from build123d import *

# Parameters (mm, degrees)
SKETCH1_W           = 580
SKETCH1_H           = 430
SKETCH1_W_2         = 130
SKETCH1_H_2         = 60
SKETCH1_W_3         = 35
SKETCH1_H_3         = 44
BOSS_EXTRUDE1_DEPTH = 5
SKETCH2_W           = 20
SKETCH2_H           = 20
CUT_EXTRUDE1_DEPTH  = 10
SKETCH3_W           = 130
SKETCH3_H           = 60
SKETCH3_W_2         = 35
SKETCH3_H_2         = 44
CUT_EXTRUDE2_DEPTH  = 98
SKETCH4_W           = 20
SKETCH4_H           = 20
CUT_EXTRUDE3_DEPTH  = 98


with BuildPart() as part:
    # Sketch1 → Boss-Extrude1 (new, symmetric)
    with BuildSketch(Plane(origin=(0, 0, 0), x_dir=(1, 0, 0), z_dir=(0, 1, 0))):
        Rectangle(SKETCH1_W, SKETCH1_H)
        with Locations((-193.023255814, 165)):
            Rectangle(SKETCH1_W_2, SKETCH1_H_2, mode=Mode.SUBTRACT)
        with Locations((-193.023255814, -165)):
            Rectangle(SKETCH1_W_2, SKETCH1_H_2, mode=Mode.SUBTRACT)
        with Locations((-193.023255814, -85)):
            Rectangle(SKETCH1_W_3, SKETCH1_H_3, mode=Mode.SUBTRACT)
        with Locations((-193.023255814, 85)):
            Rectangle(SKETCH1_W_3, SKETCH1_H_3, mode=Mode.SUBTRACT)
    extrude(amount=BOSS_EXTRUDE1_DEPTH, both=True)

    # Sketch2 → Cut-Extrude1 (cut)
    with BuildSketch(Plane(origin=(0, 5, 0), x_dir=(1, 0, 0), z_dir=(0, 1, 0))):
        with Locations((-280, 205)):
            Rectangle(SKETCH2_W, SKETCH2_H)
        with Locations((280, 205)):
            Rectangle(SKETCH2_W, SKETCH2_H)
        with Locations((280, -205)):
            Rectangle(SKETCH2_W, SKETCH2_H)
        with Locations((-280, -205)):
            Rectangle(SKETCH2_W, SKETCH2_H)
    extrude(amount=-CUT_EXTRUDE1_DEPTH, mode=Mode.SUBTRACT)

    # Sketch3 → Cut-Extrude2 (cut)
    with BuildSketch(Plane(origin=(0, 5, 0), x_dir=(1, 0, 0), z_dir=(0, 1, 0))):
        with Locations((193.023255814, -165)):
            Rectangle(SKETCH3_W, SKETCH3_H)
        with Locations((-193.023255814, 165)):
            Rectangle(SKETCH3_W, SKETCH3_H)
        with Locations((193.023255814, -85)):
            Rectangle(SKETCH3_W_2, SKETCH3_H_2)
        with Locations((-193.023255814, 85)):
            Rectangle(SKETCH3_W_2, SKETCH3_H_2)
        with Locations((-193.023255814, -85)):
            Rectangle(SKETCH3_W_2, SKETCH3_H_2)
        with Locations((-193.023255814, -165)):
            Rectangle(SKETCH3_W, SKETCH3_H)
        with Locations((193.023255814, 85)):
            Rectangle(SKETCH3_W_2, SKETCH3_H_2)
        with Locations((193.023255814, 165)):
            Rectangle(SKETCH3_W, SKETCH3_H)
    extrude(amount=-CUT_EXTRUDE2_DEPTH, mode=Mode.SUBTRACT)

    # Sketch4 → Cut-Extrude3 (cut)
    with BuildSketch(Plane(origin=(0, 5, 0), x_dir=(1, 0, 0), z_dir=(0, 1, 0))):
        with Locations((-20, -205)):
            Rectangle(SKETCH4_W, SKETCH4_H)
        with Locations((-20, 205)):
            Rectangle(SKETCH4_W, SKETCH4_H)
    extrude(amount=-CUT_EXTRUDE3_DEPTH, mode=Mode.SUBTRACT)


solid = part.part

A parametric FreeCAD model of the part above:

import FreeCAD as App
import Part
import Sketcher

V = App.Vector
Q = App.Units.Quantity

doc = App.newDocument("Part")
body = doc.addObject("PartDesign::Body", "Body")

# Sketch on XZ plane
sketch1 = body.newObject("Sketcher::SketchObject", "Sketch")
sketch1.AttachmentSupport = (doc.getObject("XZ_Plane"), [""])
sketch1.MapMode = "FlatFace"
sketch1.addGeometry([
    Part.LineSegment(V(-290, -215, 0), V(-290, 215, 0)),  # 0
    Part.LineSegment(V(-290, 215, 0), V(290, 215, 0)),  # 1
    Part.LineSegment(V(290, 215, 0), V(290, -215, 0)),  # 2
    Part.LineSegment(V(290, -215, 0), V(-290, -215, 0)),  # 3
    Part.LineSegment(V(-176, 107, 0), V(-211, 107, 0)),  # 4
    Part.LineSegment(V(-211, 107, 0), V(-211, 63, 0)),  # 5
    Part.LineSegment(V(-211, 63, 0), V(-176, 63, 0)),  # 6
    Part.LineSegment(V(-176, 63, 0), V(-176, 107, 0)),  # 7
    Part.LineSegment(V(-128, 195, 0), V(-258, 195, 0)),  # 8
    Part.LineSegment(V(-258, 195, 0), V(-258, 135, 0)),  # 9
    Part.LineSegment(V(-258, 135, 0), V(-128, 135, 0)),  # 10
    Part.LineSegment(V(-128, 135, 0), V(-128, 195, 0)),  # 11
    Part.LineSegment(V(-176, -63, 0), V(-211, -63, 0)),  # 12
    Part.LineSegment(V(-211, -63, 0), V(-211, -107, 0)),  # 13
    Part.LineSegment(V(-211, -107, 0), V(-176, -107, 0)),  # 14
    Part.LineSegment(V(-176, -107, 0), V(-176, -63, 0)),  # 15
    Part.LineSegment(V(-128, -135, 0), V(-258, -135, 0)),  # 16
    Part.LineSegment(V(-258, -135, 0), V(-258, -195, 0)),  # 17
    Part.LineSegment(V(-258, -195, 0), V(-128, -195, 0)),  # 18
    Part.LineSegment(V(-128, -195, 0), V(-128, -135, 0)),  # 19
], False)
sketch1.addConstraint([
    Sketcher.Constraint("Coincident", 0, 2, 1, 1),
    Sketcher.Constraint("Coincident", 1, 2, 2, 1),
    Sketcher.Constraint("Coincident", 2, 2, 3, 1),
    Sketcher.Constraint("Coincident", 3, 2, 0, 1),
    Sketcher.Constraint("Coincident", 4, 2, 5, 1),
    Sketcher.Constraint("Coincident", 5, 2, 6, 1),
    Sketcher.Constraint("Coincident", 6, 2, 7, 1),
    Sketcher.Constraint("Coincident", 7, 2, 4, 1),
    Sketcher.Constraint("Coincident", 8, 2, 9, 1),
    Sketcher.Constraint("Coincident", 9, 2, 10, 1),
    Sketcher.Constraint("Coincident", 10, 2, 11, 1),
    Sketcher.Constraint("Coincident", 11, 2, 8, 1),
    Sketcher.Constraint("Coincident", 12, 2, 13, 1),
    Sketcher.Constraint("Coincident", 13, 2, 14, 1),
    Sketcher.Constraint("Coincident", 14, 2, 15, 1),
    Sketcher.Constraint("Coincident", 15, 2, 12, 1),
    Sketcher.Constraint("Coincident", 16, 2, 17, 1),
    Sketcher.Constraint("Coincident", 17, 2, 18, 1),
    Sketcher.Constraint("Coincident", 18, 2, 19, 1),
    Sketcher.Constraint("Coincident", 19, 2, 16, 1),
    Sketcher.Constraint("Vertical", 0),
    Sketcher.Constraint("Horizontal", 1),
    Sketcher.Constraint("Vertical", 2),
    Sketcher.Constraint("Horizontal", 3),
    Sketcher.Constraint("Horizontal", 4),
    Sketcher.Constraint("Vertical", 5),
    Sketcher.Constraint("Horizontal", 6),
    Sketcher.Constraint("Vertical", 7),
    Sketcher.Constraint("Horizontal", 8),
    Sketcher.Constraint("Vertical", 9),
    Sketcher.Constraint("Horizontal", 10),
    Sketcher.Constraint("Vertical", 11),
    Sketcher.Constraint("Horizontal", 12),
    Sketcher.Constraint("Vertical", 13),
    Sketcher.Constraint("Horizontal", 14),
    Sketcher.Constraint("Vertical", 15),
    Sketcher.Constraint("Horizontal", 16),
    Sketcher.Constraint("Vertical", 17),
    Sketcher.Constraint("Horizontal", 18),
    Sketcher.Constraint("Vertical", 19),
    Sketcher.Constraint("Symmetric", 0, 2, 2, 2, -1, 1),
    Sketcher.Constraint("Symmetric", 5, 2, 12, 2, -1),
    Sketcher.Constraint("Symmetric", 7, 2, 14, 2, -1),
    Sketcher.Constraint("Symmetric", 9, 2, 16, 2, -1),
    Sketcher.Constraint("Symmetric", 11, 2, 18, 2, -1),
    Sketcher.Constraint("DistanceX", 1, 1, 1, 2, Q("580 mm")),
    Sketcher.Constraint("DistanceX", 4, 2, 4, 1, Q("35 mm")),
    Sketcher.Constraint("DistanceX", 8, 2, 8, 1, Q("130 mm")),
    Sketcher.Constraint("DistanceY", 0, 1, 0, 2, Q("430 mm")),
    Sketcher.Constraint("DistanceY", 5, 2, 5, 1, Q("44 mm")),
    Sketcher.Constraint("DistanceY", 9, 2, 9, 1, Q("60 mm")),
    Sketcher.Constraint("DistanceY", -1, 1, 4, 2, Q("107 mm")),
    Sketcher.Constraint("DistanceY", -1, 1, 8, 2, Q("195 mm")),
    Sketcher.Constraint("DistanceX", 8, 2, 4, 2, Q("47.5 mm")),
    Sketcher.Constraint("DistanceX", 4, 2, -1, 1, Q("210.523256 mm")),
])
pad1 = body.newObject("PartDesign::Pad", "Pad")
pad1.Profile = sketch1
pad1.Length = 10
pad1.Midplane = True

# Sketch on XZ plane
sketch2 = body.newObject("Sketcher::SketchObject", "Sketch001")
sketch2.AttachmentSupport = (doc.getObject("XZ_Plane"), [""])
sketch2.MapMode = "FlatFace"
sketch2.AttachmentOffset = App.Placement(V(0, 0, -5), App.Rotation())
sketch2.addGeometry([
    Part.LineSegment(V(-290, -215, 0), V(-290, -195, 0)),  # 0
    Part.LineSegment(V(-290, -195, 0), V(-270, -195, 0)),  # 1
    Part.LineSegment(V(-270, -195, 0), V(-270, -215, 0)),  # 2
    Part.LineSegment(V(-270, -215, 0), V(-290, -215, 0)),  # 3
    Part.LineSegment(V(270, -215, 0), V(270, -195, 0)),  # 4
    Part.LineSegment(V(270, -195, 0), V(290, -195, 0)),  # 5
    Part.LineSegment(V(290, -195, 0), V(290, -215, 0)),  # 6
    Part.LineSegment(V(290, -215, 0), V(270, -215, 0)),  # 7
    Part.LineSegment(V(270, 195, 0), V(270, 215, 0)),  # 8
    Part.LineSegment(V(270, 215, 0), V(290, 215, 0)),  # 9
    Part.LineSegment(V(290, 215, 0), V(290, 195, 0)),  # 10
    Part.LineSegment(V(290, 195, 0), V(270, 195, 0)),  # 11
    Part.LineSegment(V(-290, 195, 0), V(-290, 215, 0)),  # 12
    Part.LineSegment(V(-290, 215, 0), V(-270, 215, 0)),  # 13
    Part.LineSegment(V(-270, 215, 0), V(-270, 195, 0)),  # 14
    Part.LineSegment(V(-270, 195, 0), V(-290, 195, 0)),  # 15
], False)
sketch2.addConstraint([
    Sketcher.Constraint("Coincident", 0, 2, 1, 1),
    Sketcher.Constraint("Coincident", 1, 2, 2, 1),
    Sketcher.Constraint("Coincident", 2, 2, 3, 1),
    Sketcher.Constraint("Coincident", 3, 2, 0, 1),
    Sketcher.Constraint("Coincident", 4, 2, 5, 1),
    Sketcher.Constraint("Coincident", 5, 2, 6, 1),
    Sketcher.Constraint("Coincident", 6, 2, 7, 1),
    Sketcher.Constraint("Coincident", 7, 2, 4, 1),
    Sketcher.Constraint("Coincident", 8, 2, 9, 1),
    Sketcher.Constraint("Coincident", 9, 2, 10, 1),
    Sketcher.Constraint("Coincident", 10, 2, 11, 1),
    Sketcher.Constraint("Coincident", 11, 2, 8, 1),
    Sketcher.Constraint("Coincident", 12, 2, 13, 1),
    Sketcher.Constraint("Coincident", 13, 2, 14, 1),
    Sketcher.Constraint("Coincident", 14, 2, 15, 1),
    Sketcher.Constraint("Coincident", 15, 2, 12, 1),
    Sketcher.Constraint("Vertical", 0),
    Sketcher.Constraint("Horizontal", 1),
    Sketcher.Constraint("Vertical", 2),
    Sketcher.Constraint("Horizontal", 3),
    Sketcher.Constraint("Vertical", 4),
    Sketcher.Constraint("Horizontal", 5),
    Sketcher.Constraint("Vertical", 6),
    Sketcher.Constraint("Horizontal", 7),
    Sketcher.Constraint("Vertical", 8),
    Sketcher.Constraint("Horizontal", 9),
    Sketcher.Constraint("Vertical", 10),
    Sketcher.Constraint("Horizontal", 11),
    Sketcher.Constraint("Vertical", 12),
    Sketcher.Constraint("Horizontal", 13),
    Sketcher.Constraint("Vertical", 14),
    Sketcher.Constraint("Horizontal", 15),
    Sketcher.Constraint("Symmetric", 2, 2, 8, 2, -1, 1),
    Sketcher.Constraint("Symmetric", 0, 2, 10, 2, -1, 1),
    Sketcher.Constraint("Symmetric", 6, 2, 12, 2, -1, 1),
    Sketcher.Constraint("Symmetric", 4, 2, 14, 2, -1, 1),
    Sketcher.Constraint("Symmetric", 1, 2, 4, 2, -2),
    Sketcher.Constraint("Symmetric", 3, 2, 6, 2, -2),
    Sketcher.Constraint("Equal", 15, 0),
    Sketcher.Constraint("DistanceX", 1, 1, 1, 2, Q("20 mm")),
    Sketcher.Constraint("DistanceX", 0, 2, -1, 1, Q("290 mm")),
    Sketcher.Constraint("DistanceY", 0, 2, -1, 1, Q("195 mm")),
])
pocket1 = body.newObject("PartDesign::Pocket", "Pocket")
pocket1.Profile = sketch2
pocket1.Length = 10
pocket1.Reversed = True

# Sketch on XZ plane
sketch3 = body.newObject("Sketcher::SketchObject", "Sketch002")
sketch3.AttachmentSupport = (doc.getObject("XZ_Plane"), [""])
sketch3.MapMode = "FlatFace"
sketch3.AttachmentOffset = App.Placement(V(0, 0, -5), App.Rotation())
sketch3.addGeometry([
    Part.LineSegment(V(128, 135, 0), V(128, 195, 0)),  # 0
    Part.LineSegment(V(128, 195, 0), V(258, 195, 0)),  # 1
    Part.LineSegment(V(258, 195, 0), V(258, 135, 0)),  # 2
    Part.LineSegment(V(258, 135, 0), V(128, 135, 0)),  # 3
    Part.LineSegment(V(-258, -195, 0), V(-258, -135, 0)),  # 4
    Part.LineSegment(V(-258, -135, 0), V(-128, -135, 0)),  # 5
    Part.LineSegment(V(-128, -135, 0), V(-128, -195, 0)),  # 6
    Part.LineSegment(V(-128, -195, 0), V(-258, -195, 0)),  # 7
    Part.LineSegment(V(176, 63, 0), V(176, 107, 0)),  # 8
    Part.LineSegment(V(176, 107, 0), V(211, 107, 0)),  # 9
    Part.LineSegment(V(211, 107, 0), V(211, 63, 0)),  # 10
    Part.LineSegment(V(211, 63, 0), V(176, 63, 0)),  # 11
    Part.LineSegment(V(-211, -107, 0), V(-211, -63, 0)),  # 12
    Part.LineSegment(V(-211, -63, 0), V(-176, -63, 0)),  # 13
    Part.LineSegment(V(-176, -63, 0), V(-176, -107, 0)),  # 14
    Part.LineSegment(V(-176, -107, 0), V(-211, -107, 0)),  # 15
    Part.LineSegment(V(-211, 63, 0), V(-211, 107, 0)),  # 16
    Part.LineSegment(V(-211, 107, 0), V(-176, 107, 0)),  # 17
    Part.LineSegment(V(-176, 107, 0), V(-176, 63, 0)),  # 18
    Part.LineSegment(V(-176, 63, 0), V(-211, 63, 0)),  # 19
    Part.LineSegment(V(-258, 135, 0), V(-258, 195, 0)),  # 20
    Part.LineSegment(V(-258, 195, 0), V(-128, 195, 0)),  # 21
    Part.LineSegment(V(-128, 195, 0), V(-128, 135, 0)),  # 22
    Part.LineSegment(V(-128, 135, 0), V(-258, 135, 0)),  # 23
    Part.LineSegment(V(176, -107, 0), V(176, -63, 0)),  # 24
    Part.LineSegment(V(176, -63, 0), V(211, -63, 0)),  # 25
    Part.LineSegment(V(211, -63, 0), V(211, -107, 0)),  # 26
    Part.LineSegment(V(211, -107, 0), V(176, -107, 0)),  # 27
    Part.LineSegment(V(128, -195, 0), V(128, -135, 0)),  # 28
    Part.LineSegment(V(128, -135, 0), V(258, -135, 0)),  # 29
    Part.LineSegment(V(258, -135, 0), V(258, -195, 0)),  # 30
    Part.LineSegment(V(258, -195, 0), V(128, -195, 0)),  # 31
], False)
sketch3.addConstraint([
    Sketcher.Constraint("Coincident", 0, 2, 1, 1),
    Sketcher.Constraint("Coincident", 1, 2, 2, 1),
    Sketcher.Constraint("Coincident", 2, 2, 3, 1),
    Sketcher.Constraint("Coincident", 3, 2, 0, 1),
    Sketcher.Constraint("Coincident", 4, 2, 5, 1),
    Sketcher.Constraint("Coincident", 5, 2, 6, 1),
    Sketcher.Constraint("Coincident", 6, 2, 7, 1),
    Sketcher.Constraint("Coincident", 7, 2, 4, 1),
    Sketcher.Constraint("Coincident", 8, 2, 9, 1),
    Sketcher.Constraint("Coincident", 9, 2, 10, 1),
    Sketcher.Constraint("Coincident", 10, 2, 11, 1),
    Sketcher.Constraint("Coincident", 11, 2, 8, 1),
    Sketcher.Constraint("Coincident", 12, 2, 13, 1),
    Sketcher.Constraint("Coincident", 13, 2, 14, 1),
    Sketcher.Constraint("Coincident", 14, 2, 15, 1),
    Sketcher.Constraint("Coincident", 15, 2, 12, 1),
    Sketcher.Constraint("Coincident", 16, 2, 17, 1),
    Sketcher.Constraint("Coincident", 17, 2, 18, 1),
    Sketcher.Constraint("Coincident", 18, 2, 19, 1),
    Sketcher.Constraint("Coincident", 19, 2, 16, 1),
    Sketcher.Constraint("Coincident", 20, 2, 21, 1),
    Sketcher.Constraint("Coincident", 21, 2, 22, 1),
    Sketcher.Constraint("Coincident", 22, 2, 23, 1),
    Sketcher.Constraint("Coincident", 23, 2, 20, 1),
    Sketcher.Constraint("Coincident", 24, 2, 25, 1),
    Sketcher.Constraint("Coincident", 25, 2, 26, 1),
    Sketcher.Constraint("Coincident", 26, 2, 27, 1),
    Sketcher.Constraint("Coincident", 27, 2, 24, 1),
    Sketcher.Constraint("Coincident", 28, 2, 29, 1),
    Sketcher.Constraint("Coincident", 29, 2, 30, 1),
    Sketcher.Constraint("Coincident", 30, 2, 31, 1),
    Sketcher.Constraint("Coincident", 31, 2, 28, 1),
    Sketcher.Constraint("Vertical", 0),
    Sketcher.Constraint("Horizontal", 1),
    Sketcher.Constraint("Vertical", 2),
    Sketcher.Constraint("Horizontal", 3),
    Sketcher.Constraint("Vertical", 4),
    Sketcher.Constraint("Horizontal", 5),
    Sketcher.Constraint("Vertical", 6),
    Sketcher.Constraint("Horizontal", 7),
    Sketcher.Constraint("Vertical", 8),
    Sketcher.Constraint("Horizontal", 9),
    Sketcher.Constraint("Vertical", 10),
    Sketcher.Constraint("Horizontal", 11),
    Sketcher.Constraint("Vertical", 12),
    Sketcher.Constraint("Horizontal", 13),
    Sketcher.Constraint("Vertical", 14),
    Sketcher.Constraint("Horizontal", 15),
    Sketcher.Constraint("Vertical", 16),
    Sketcher.Constraint("Horizontal", 17),
    Sketcher.Constraint("Vertical", 18),
    Sketcher.Constraint("Horizontal", 19),
    Sketcher.Constraint("Vertical", 20),
    Sketcher.Constraint("Horizontal", 21),
    Sketcher.Constraint("Vertical", 22),
    Sketcher.Constraint("Horizontal", 23),
    Sketcher.Constraint("Vertical", 24),
    Sketcher.Constraint("Horizontal", 25),
    Sketcher.Constraint("Vertical", 26),
    Sketcher.Constraint("Horizontal", 27),
    Sketcher.Constraint("Vertical", 28),
    Sketcher.Constraint("Horizontal", 29),
    Sketcher.Constraint("Vertical", 30),
    Sketcher.Constraint("Horizontal", 31),
    Sketcher.Constraint("Symmetric", 2, 2, 4, 2, -1, 1),
    Sketcher.Constraint("Symmetric", 0, 2, 6, 2, -1, 1),
    Sketcher.Constraint("Symmetric", 10, 2, 12, 2, -1, 1),
    Sketcher.Constraint("Symmetric", 8, 2, 14, 2, -1, 1),
    Sketcher.Constraint("Symmetric", 18, 2, 24, 2, -1, 1),
    Sketcher.Constraint("Symmetric", 16, 2, 26, 2, -1, 1),
    Sketcher.Constraint("Symmetric", 22, 2, 28, 2, -1, 1),
    Sketcher.Constraint("Symmetric", 20, 2, 30, 2, -1, 1),
    Sketcher.Constraint("Symmetric", 9, 2, 16, 2, -2),
    Sketcher.Constraint("Symmetric", 11, 2, 18, 2, -2),
    Sketcher.Constraint("Symmetric", 1, 2, 20, 2, -2),
    Sketcher.Constraint("Symmetric", 3, 2, 22, 2, -2),
    Sketcher.Constraint("DistanceX", 1, 1, 1, 2, Q("130 mm")),
    Sketcher.Constraint("DistanceX", 9, 1, 9, 2, Q("35 mm")),
    Sketcher.Constraint("DistanceY", 0, 1, 0, 2, Q("60 mm")),
    Sketcher.Constraint("DistanceY", 8, 1, 8, 2, Q("44 mm")),
    Sketcher.Constraint("DistanceY", -1, 1, 0, 2, Q("195 mm")),
    Sketcher.Constraint("DistanceY", -1, 1, 8, 2, Q("107 mm")),
    Sketcher.Constraint("DistanceX", 3, 2, 8, 2, Q("47.5 mm")),
    Sketcher.Constraint("DistanceX", 4, 2, 3, 2, Q("386.046512 mm")),
])
pocket2 = body.newObject("PartDesign::Pocket", "Pocket001")
pocket2.Profile = sketch3
pocket2.Length = 98
pocket2.Reversed = True

# Sketch on XZ plane
sketch4 = body.newObject("Sketcher::SketchObject", "Sketch003")
sketch4.AttachmentSupport = (doc.getObject("XZ_Plane"), [""])
sketch4.MapMode = "FlatFace"
sketch4.AttachmentOffset = App.Placement(V(0, 0, -5), App.Rotation())
sketch4.addGeometry([
    Part.LineSegment(V(-30, 195, 0), V(-30, 215, 0)),  # 0
    Part.LineSegment(V(-30, 215, 0), V(-10, 215, 0)),  # 1
    Part.LineSegment(V(-10, 215, 0), V(-10, 195, 0)),  # 2
    Part.LineSegment(V(-10, 195, 0), V(-30, 195, 0)),  # 3
    Part.LineSegment(V(-30, -215, 0), V(-30, -195, 0)),  # 4
    Part.LineSegment(V(-30, -195, 0), V(-10, -195, 0)),  # 5
    Part.LineSegment(V(-10, -195, 0), V(-10, -215, 0)),  # 6
    Part.LineSegment(V(-10, -215, 0), V(-30, -215, 0)),  # 7
], False)
sketch4.addConstraint([
    Sketcher.Constraint("Coincident", 0, 2, 1, 1),
    Sketcher.Constraint("Coincident", 1, 2, 2, 1),
    Sketcher.Constraint("Coincident", 2, 2, 3, 1),
    Sketcher.Constraint("Coincident", 3, 2, 0, 1),
    Sketcher.Constraint("Coincident", 4, 2, 5, 1),
    Sketcher.Constraint("Coincident", 5, 2, 6, 1),
    Sketcher.Constraint("Coincident", 6, 2, 7, 1),
    Sketcher.Constraint("Coincident", 7, 2, 4, 1),
    Sketcher.Constraint("Vertical", 0),
    Sketcher.Constraint("Horizontal", 1),
    Sketcher.Constraint("Vertical", 2),
    Sketcher.Constraint("Horizontal", 3),
    Sketcher.Constraint("Vertical", 4),
    Sketcher.Constraint("Horizontal", 5),
    Sketcher.Constraint("Vertical", 6),
    Sketcher.Constraint("Horizontal", 7),
    Sketcher.Constraint("Symmetric", 3, 2, 4, 2, -1),
    Sketcher.Constraint("Symmetric", 1, 2, 6, 2, -1),
    Sketcher.Constraint("Equal", 7, 0),
    Sketcher.Constraint("DistanceX", 1, 1, 1, 2, Q("20 mm")),
    Sketcher.Constraint("DistanceX", 0, 2, -1, 1, Q("30 mm")),
    Sketcher.Constraint("DistanceY", -1, 1, 0, 2, Q("215 mm")),
])
pocket3 = body.newObject("PartDesign::Pocket", "Pocket002")
pocket3.Profile = sketch4
pocket3.Length = 98
pocket3.Reversed = True

doc.recompute()
